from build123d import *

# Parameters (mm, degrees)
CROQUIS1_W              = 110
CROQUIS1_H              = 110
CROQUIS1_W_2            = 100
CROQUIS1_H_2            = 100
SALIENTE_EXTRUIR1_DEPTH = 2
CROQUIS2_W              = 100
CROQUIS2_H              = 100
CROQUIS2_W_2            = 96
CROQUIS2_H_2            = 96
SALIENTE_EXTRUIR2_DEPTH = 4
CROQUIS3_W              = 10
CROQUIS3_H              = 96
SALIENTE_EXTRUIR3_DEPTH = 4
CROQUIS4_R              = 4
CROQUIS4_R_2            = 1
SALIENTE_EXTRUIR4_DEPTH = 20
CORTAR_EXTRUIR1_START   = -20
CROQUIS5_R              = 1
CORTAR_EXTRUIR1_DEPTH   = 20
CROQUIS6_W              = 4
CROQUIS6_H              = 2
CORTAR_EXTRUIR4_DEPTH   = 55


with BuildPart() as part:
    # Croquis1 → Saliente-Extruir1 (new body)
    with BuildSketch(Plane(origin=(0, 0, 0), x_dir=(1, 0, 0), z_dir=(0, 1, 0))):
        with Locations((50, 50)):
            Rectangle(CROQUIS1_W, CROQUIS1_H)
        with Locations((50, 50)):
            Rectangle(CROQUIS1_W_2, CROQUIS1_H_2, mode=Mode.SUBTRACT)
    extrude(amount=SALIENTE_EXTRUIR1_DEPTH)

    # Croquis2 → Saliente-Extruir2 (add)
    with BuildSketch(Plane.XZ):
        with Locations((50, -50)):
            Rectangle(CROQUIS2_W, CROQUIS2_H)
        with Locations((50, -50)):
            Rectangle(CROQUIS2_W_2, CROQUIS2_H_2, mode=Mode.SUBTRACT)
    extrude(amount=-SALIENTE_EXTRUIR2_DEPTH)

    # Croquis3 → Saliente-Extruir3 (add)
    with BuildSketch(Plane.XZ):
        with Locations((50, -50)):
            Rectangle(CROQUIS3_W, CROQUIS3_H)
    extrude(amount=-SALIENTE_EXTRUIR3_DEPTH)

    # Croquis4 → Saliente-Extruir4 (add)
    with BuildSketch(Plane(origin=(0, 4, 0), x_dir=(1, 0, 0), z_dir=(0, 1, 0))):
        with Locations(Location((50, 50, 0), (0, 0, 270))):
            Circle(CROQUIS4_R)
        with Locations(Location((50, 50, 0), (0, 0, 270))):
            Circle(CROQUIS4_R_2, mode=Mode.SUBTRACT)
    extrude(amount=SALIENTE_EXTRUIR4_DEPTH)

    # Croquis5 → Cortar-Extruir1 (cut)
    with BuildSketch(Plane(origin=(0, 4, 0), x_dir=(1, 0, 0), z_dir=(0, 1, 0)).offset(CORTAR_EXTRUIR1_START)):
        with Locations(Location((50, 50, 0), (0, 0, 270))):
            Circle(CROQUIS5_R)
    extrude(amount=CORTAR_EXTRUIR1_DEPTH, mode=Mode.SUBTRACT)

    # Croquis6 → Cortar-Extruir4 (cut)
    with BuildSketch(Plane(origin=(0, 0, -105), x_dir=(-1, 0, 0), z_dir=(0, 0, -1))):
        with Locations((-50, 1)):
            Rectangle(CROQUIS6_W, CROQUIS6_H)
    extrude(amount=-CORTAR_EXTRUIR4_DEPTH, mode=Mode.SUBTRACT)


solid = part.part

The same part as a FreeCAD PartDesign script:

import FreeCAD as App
import Part
import Sketcher

doc = App.newDocument("Part")
params = doc.addObject("Spreadsheet::Sheet", "Params")
for row, (alias, value) in enumerate([
    ("sketch1_width", "110 mm"),
    ("sketch1_width2", "100 mm"),
    ("pad1_length", "2 mm"),
    ("sketch2_width", "100 mm"),
    ("sketch2_width2", "96 mm"),
    ("pad2_length", "4 mm"),
    ("sketch3_width", "10 mm"),
    ("sketch3_height", "96 mm"),
    ("pad3_length", "4 mm"),
    ("sketch4_diameter", "8 mm"),
    ("sketch4_diameter2", "2 mm"),
    ("pad4_length", "20 mm"),
    ("sketch5_diameter", "2 mm"),
    ("pocket1_length", "20 mm"),
    ("sketch6_width", "4 mm"),
    ("sketch6_height", "2 mm"),
    ("pocket2_length", "55 mm"),
], start=1):
    params.set(f"A{row}", alias)
    params.set(f"B{row}", "=" + value)
    params.setAlias(f"B{row}", alias)

body = doc.addObject("PartDesign::Body", "Body")

sketch1 = body.newObject("Sketcher::SketchObject", "Sketch")
sketch1.AttachmentSupport = (doc.getObject("XZ_Plane"), [""])
sketch1.MapMode = "FlatFace"
sketch1.addGeometry([
    Part.LineSegment(App.Vector(-5, -105, 0), App.Vector(-5, 5, 0)),
    Part.LineSegment(App.Vector(-5, 5, 0), App.Vector(105, 5, 0)),
    Part.LineSegment(App.Vector(105, 5, 0), App.Vector(105, -105, 0)),
    Part.LineSegment(App.Vector(105, -105, 0), App.Vector(-5, -105, 0)),
    Part.LineSegment(App.Vector(100, 0, 0), App.Vector(0, 0, 0)),
    Part.LineSegment(App.Vector(0, 0, 0), App.Vector(0, -100, 0)),
    Part.LineSegment(App.Vector(0, -100, 0), App.Vector(100, -100, 0)),
    Part.LineSegment(App.Vector(100, -100, 0), App.Vector(100, 0, 0)),
], False)
sketch1.addConstraint([
    Sketcher.Constraint("Coincident", 0, 2, 1, 1),
    Sketcher.Constraint("Coincident", 1, 2, 2, 1),
    Sketcher.Constraint("Coincident", 2, 2, 3, 1),
    Sketcher.Constraint("Coincident", 3, 2, 0, 1),
    Sketcher.Constraint("Coincident", 4, 2, 5, 1),
    Sketcher.Constraint("Coincident", 5, 2, 6, 1),
    Sketcher.Constraint("Coincident", 6, 2, 7, 1),
    Sketcher.Constraint("Coincident", 7, 2, 4, 1),
    Sketcher.Constraint("Vertical", 0),
    Sketcher.Constraint("Horizontal", 1),
    Sketcher.Constraint("Vertical", 2),
    Sketcher.Constraint("Horizontal", 3),
    Sketcher.Constraint("Horizontal", 4),
    Sketcher.Constraint("Vertical", 5),
    Sketcher.Constraint("Horizontal", 6),
    Sketcher.Constraint("Vertical", 7),
    Sketcher.Constraint("Coincident", 4, 2, -1, 1),
    Sketcher.Constraint("Equal", 3, 0),
    Sketcher.Constraint("Equal", 6, 5),
    Sketcher.Constraint("DistanceX", 1, 1, 1, 2, 110.0),
    Sketcher.Constraint("DistanceX", 4, 2, 4, 1, 100.0),
    Sketcher.Constraint("DistanceX", 0, 2, -1, 1, 5.0),
    Sketcher.Constraint("DistanceY", -1, 1, 0, 2, 5.0),
])
sketch1.setExpression("Constraints[19]", "Params.sketch1_width")
sketch1.setExpression("Constraints[20]", "Params.sketch1_width2")
pad1 = body.newObject("PartDesign::Pad", "Pad")
pad1.Profile = sketch1
pad1.setExpression("Length", "Params.pad1_length")
pad1.Reversed = True

sketch2 = body.newObject("Sketcher::SketchObject", "Sketch001")
sketch2.AttachmentSupport = (doc.getObject("XZ_Plane"), [""])
sketch2.MapMode = "FlatFace"
sketch2.addGeometry([
    Part.LineSegment(App.Vector(0, 0, 0), App.Vector(0, -100, 0)),
    Part.LineSegment(App.Vector(0, -100, 0), App.Vector(100, -100, 0)),
    Part.LineSegment(App.Vector(100, -100, 0), App.Vector(100, 0, 0)),
    Part.LineSegment(App.Vector(100, 0, 0), App.Vector(0, 0, 0)),
    Part.LineSegment(App.Vector(98, -98, 0), App.Vector(2, -98, 0)),
    Part.LineSegment(App.Vector(2, -98, 0), App.Vector(2, -2, 0)),
    Part.LineSegment(App.Vector(2, -2, 0), App.Vector(98, -2, 0)),
    Part.LineSegment(App.Vector(98, -2, 0), App.Vector(98, -98, 0)),
], False)
sketch2.addConstraint([
    Sketcher.Constraint("Coincident", 0, 2, 1, 1),
    Sketcher.Constraint("Coincident", 1, 2, 2, 1),
    Sketcher.Constraint("Coincident", 2, 2, 3, 1),
    Sketcher.Constraint("Coincident", 3, 2, 0, 1),
    Sketcher.Constraint("Coincident", 4, 2, 5, 1),
    Sketcher.Constraint("Coincident", 5, 2, 6, 1),
    Sketcher.Constraint("Coincident", 6, 2, 7, 1),
    Sketcher.Constraint("Coincident", 7, 2, 4, 1),
    Sketcher.Constraint("Vertical", 0),
    Sketcher.Constraint("Horizontal", 1),
    Sketcher.Constraint("Vertical", 2),
    Sketcher.Constraint("Horizontal", 3),
    Sketcher.Constraint("Horizontal", 4),
    Sketcher.Constraint("Vertical", 5),
    Sketcher.Constraint("Horizontal", 6),
    Sketcher.Constraint("Vertical", 7),
    Sketcher.Constraint("Coincident", 3, 2, -1, 1),
    Sketcher.Constraint("Equal", 3, 0),
    Sketcher.Constraint("Equal", 6, 5),
    Sketcher.Constraint("DistanceX", 1, 1, 1, 2, 100.0),
    Sketcher.Constraint("DistanceX", 4, 2, 4, 1, 96.0),
    Sketcher.Constraint("DistanceX", -1, 1, 4, 2, 2.0),
    Sketcher.Constraint("DistanceY", 4, 2, -1, 1, 98.0),
])
sketch2.setExpression("Constraints[19]", "Params.sketch2_width")
sketch2.setExpression("Constraints[20]", "Params.sketch2_width2")
pad2 = body.newObject("PartDesign::Pad", "Pad001")
pad2.Profile = sketch2
pad2.setExpression("Length", "Params.pad2_length")
pad2.Reversed = True

sketch3 = body.newObject("Sketcher::SketchObject", "Sketch002")
sketch3.AttachmentSupport = (doc.getObject("XZ_Plane"), [""])
sketch3.MapMode = "FlatFace"
sketch3.addGeometry([
    Part.LineSegment(App.Vector(45, -2, 0), App.Vector(45, -98, 0)),
    Part.LineSegment(App.Vector(45, -98, 0), App.Vector(55, -98, 0)),
    Part.LineSegment(App.Vector(55, -98, 0), App.Vector(55, -2, 0)),
    Part.LineSegment(App.Vector(55, -2, 0), App.Vector(45, -2, 0)),
], False)
sketch3.addConstraint([
    Sketcher.Constraint("Coincident", 0, 2, 1, 1),
    Sketcher.Constraint("Coincident", 1, 2, 2, 1),
    Sketcher.Constraint("Coincident", 2, 2, 3, 1),
    Sketcher.Constraint("Coincident", 3, 2, 0, 1),
    Sketcher.Constraint("Vertical", 0),
    Sketcher.Constraint("Horizontal", 1),
    Sketcher.Constraint("Vertical", 2),
    Sketcher.Constraint("Horizontal", 3),
    Sketcher.Constraint("DistanceX", 1, 1, 1, 2, 10.0),
    Sketcher.Constraint("DistanceY", 0, 2, 0, 1, 96.0),
    Sketcher.Constraint("DistanceX", -1, 1, 0, 2, 45.0),
    Sketcher.Constraint("DistanceY", 0, 2, -1, 1, 98.0),
])
sketch3.setExpression("Constraints[8]", "Params.sketch3_width")
sketch3.setExpression("Constraints[9]", "Params.sketch3_height")
pad3 = body.newObject("PartDesign::Pad", "Pad002")
pad3.Profile = sketch3
pad3.setExpression("Length", "Params.pad3_length")
pad3.Reversed = True

sketch4 = body.newObject("Sketcher::SketchObject", "Sketch003")
sketch4.AttachmentSupport = (doc.getObject("XZ_Plane"), [""])
sketch4.MapMode = "FlatFace"
sketch4.AttachmentOffset = App.Placement(App.Vector(0, 0, -4), App.Rotation())
sketch4.addGeometry([
    Part.Circle(App.Vector(50, -50, 0), App.Vector(0, 0, 1), 4),
    Part.Circle(App.Vector(50, -50, 0), App.Vector(0, 0, 1), 1),
], False)
sketch4.addConstraint([
    Sketcher.Constraint("Coincident", 1, 3, 0, 3),
    Sketcher.Constraint("Diameter", 0, 8.0),
    Sketcher.Constraint("Diameter", 1, 2.0),
    Sketcher.Constraint("DistanceX", -1, 1, 0, 3, 50.0),
    Sketcher.Constraint("DistanceY", 0, 3, -1, 1, 50.0),
])
sketch4.setExpression("Constraints[1]", "Params.sketch4_diameter")
sketch4.setExpression("Constraints[2]", "Params.sketch4_diameter2")
pad4 = body.newObject("PartDesign::Pad", "Pad003")
pad4.Profile = sketch4
pad4.setExpression("Length", "Params.pad4_length")
pad4.Reversed = True

sketch5 = body.newObject("Sketcher::SketchObject", "Sketch004")
sketch5.AttachmentSupport = (doc.getObject("XZ_Plane"), [""])
sketch5.MapMode = "FlatFace"
sketch5.AttachmentOffset = App.Placement(App.Vector(0, 0, 16), App.Rotation())
sketch5.addGeometry(Part.Circle(App.Vector(50, -50, 0), App.Vector(0, 0, 1), 1), False)
sketch5.addConstraint([
    Sketcher.Constraint("Diameter", 0, 2.0),
    Sketcher.Constraint("DistanceX", -1, 1, 0, 3, 50.0),
    Sketcher.Constraint("DistanceY", 0, 3, -1, 1, 50.0),
])
sketch5.setExpression("Constraints[0]", "Params.sketch5_diameter")
pocket1 = body.newObject("PartDesign::Pocket", "Pocket")
pocket1.Profile = sketch5
pocket1.setExpression("Length", "Params.pocket1_length")

sketch6 = body.newObject("Sketcher::SketchObject", "Sketch005")
sketch6.AttachmentSupport = (doc.getObject("XY_Plane"), [""])
sketch6.MapMode = "FlatFace"
sketch6.AttachmentOffset = App.Placement(App.Vector(0, 0, -105), App.Rotation())
sketch6.addGeometry([
    Part.LineSegment(App.Vector(52, 2, 0), App.Vector(52, 0, 0)),
    Part.LineSegment(App.Vector(52, 0, 0), App.Vector(48, 0, 0)),
    Part.LineSegment(App.Vector(48, 0, 0), App.Vector(48, 2, 0)),
    Part.LineSegment(App.Vector(48, 2, 0), App.Vector(52, 2, 0)),
], False)
sketch6.addConstraint([
    Sketcher.Constraint("Coincident", 0, 2, 1, 1),
    Sketcher.Constraint("Coincident", 1, 2, 2, 1),
    Sketcher.Constraint("Coincident", 2, 2, 3, 1),
    Sketcher.Constraint("Coincident", 3, 2, 0, 1),
    Sketcher.Constraint("Vertical", 0),
    Sketcher.Constraint("Horizontal", 1),
    Sketcher.Constraint("Vertical", 2),
    Sketcher.Constraint("Horizontal", 3),
    Sketcher.Constraint("PointOnObject", 0, 2, -1),
    Sketcher.Constraint("DistanceX", 1, 2, 1, 1, 4.0),
    Sketcher.Constraint("DistanceY", 0, 2, 0, 1, 2.0),
    Sketcher.Constraint("DistanceX", -1, 1, 0, 2, 52.0),
])
sketch6.setExpression("Constraints[9]", "Params.sketch6_width")
sketch6.setExpression("Constraints[10]", "Params.sketch6_height")
pocket2 = body.newObject("PartDesign::Pocket", "Pocket001")
pocket2.Profile = sketch6
pocket2.setExpression("Length", "Params.pocket2_length")
pocket2.Reversed = True

doc.recompute()
